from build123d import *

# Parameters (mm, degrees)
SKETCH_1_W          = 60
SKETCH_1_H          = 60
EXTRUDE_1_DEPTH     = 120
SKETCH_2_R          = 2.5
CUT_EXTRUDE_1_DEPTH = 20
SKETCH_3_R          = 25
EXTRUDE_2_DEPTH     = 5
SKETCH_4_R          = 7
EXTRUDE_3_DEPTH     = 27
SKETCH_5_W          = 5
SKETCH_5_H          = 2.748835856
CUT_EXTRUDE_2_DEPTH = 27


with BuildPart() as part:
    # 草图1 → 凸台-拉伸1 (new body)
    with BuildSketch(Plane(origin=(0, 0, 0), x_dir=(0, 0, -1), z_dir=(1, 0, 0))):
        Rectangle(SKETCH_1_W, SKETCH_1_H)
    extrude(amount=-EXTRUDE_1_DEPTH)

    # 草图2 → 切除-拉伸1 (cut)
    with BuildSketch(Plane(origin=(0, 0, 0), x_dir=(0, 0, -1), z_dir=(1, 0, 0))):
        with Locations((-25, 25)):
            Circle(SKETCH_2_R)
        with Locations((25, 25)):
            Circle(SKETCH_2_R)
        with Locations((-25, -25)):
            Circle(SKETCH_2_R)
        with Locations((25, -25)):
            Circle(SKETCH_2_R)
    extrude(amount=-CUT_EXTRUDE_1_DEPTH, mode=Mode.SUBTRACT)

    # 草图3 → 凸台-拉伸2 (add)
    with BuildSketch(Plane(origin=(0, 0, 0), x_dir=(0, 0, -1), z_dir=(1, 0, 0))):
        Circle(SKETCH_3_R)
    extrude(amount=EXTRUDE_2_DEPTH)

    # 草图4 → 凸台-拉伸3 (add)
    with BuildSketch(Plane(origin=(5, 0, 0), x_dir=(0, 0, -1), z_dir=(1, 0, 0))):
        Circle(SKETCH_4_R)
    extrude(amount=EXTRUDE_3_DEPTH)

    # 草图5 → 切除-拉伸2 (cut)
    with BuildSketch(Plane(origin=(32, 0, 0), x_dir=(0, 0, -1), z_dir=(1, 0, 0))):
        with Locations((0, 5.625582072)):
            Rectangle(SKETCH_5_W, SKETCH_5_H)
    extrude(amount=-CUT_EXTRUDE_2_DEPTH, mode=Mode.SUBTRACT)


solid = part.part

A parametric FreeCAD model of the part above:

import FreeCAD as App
import Part
import Sketcher
from FreeCAD import Vector


def add_polygon(sketch, points):
    """Adds a closed chain of lines whose ends are joined by coincident constraints."""
    first, n = sketch.GeometryCount, len(points)
    for a, b in zip(points, points[1:] + points[:1]):
        sketch.addGeometry(Part.LineSegment(App.Vector(*a, 0), App.Vector(*b, 0)), False)
    for i in range(n):
        sketch.addConstraint(Sketcher.Constraint("Coincident", first + i, 2, first + (i + 1) % n, 1))

doc = App.newDocument("Part")
body = doc.addObject("PartDesign::Body", "Body")

sketch1 = body.newObject("Sketcher::SketchObject", "Sketch")
sketch1.AttachmentSupport = (doc.getObject("YZ_Plane"), [""])
sketch1.MapMode = "FlatFace"
add_polygon(sketch1, [(30, 30), (-30, 30), (-30, -30), (30, -30)])
sketch1.addConstraint([
    Sketcher.Constraint("Horizontal", 0),
    Sketcher.Constraint("Vertical", 1),
    Sketcher.Constraint("Horizontal", 2),
    Sketcher.Constraint("Vertical", 3),
    Sketcher.Constraint("Symmetric", 0, 2, 2, 2, -1, 1),
    Sketcher.Constraint("Equal", 2, 1),
    Sketcher.Constraint("DistanceX", 0, 2, 0, 1, 60.0),
])
pad1 = body.newObject("PartDesign::Pad", "Pad")
pad1.Profile = sketch1
pad1.Length = 120
pad1.Reversed = True

sketch2 = body.newObject("Sketcher::SketchObject", "Sketch001")
sketch2.AttachmentSupport = (doc.getObject("YZ_Plane"), [""])
sketch2.MapMode = "FlatFace"
sketch2.addGeometry([
    Part.Circle(Vector(25, 25, 0), Vector(0, 0, 1), 2.5),
    Part.Circle(Vector(25, -25, 0), Vector(0, 0, 1), 2.5),
    Part.Circle(Vector(-25, 25, 0), Vector(0, 0, 1), 2.5),
    Part.Circle(Vector(-25, -25, 0), Vector(0, 0, 1), 2.5),
], False)
sketch2.addConstraint([
    Sketcher.Constraint("Equal", 0, 1),
    Sketcher.Constraint("Equal", 1, 2),
    Sketcher.Constraint("Equal", 2, 3),
    Sketcher.Constraint("Symmetric", 1, 3, 2, 3, -1, 1),
    Sketcher.Constraint("Symmetric", 0, 3, 3, 3, -1, 1),
    Sketcher.Constraint("Symmetric", 0, 3, 2, 3, -2),
    Sketcher.Constraint("Diameter", 0, 5.0),
    Sketcher.Constraint("DistanceX", -1, 1, 0, 3, 25.0),
    Sketcher.Constraint("DistanceY", -1, 1, 0, 3, 25.0),
])
pocket1 = body.newObject("PartDesign::Pocket", "Pocket")
pocket1.Profile = sketch2
pocket1.Length = 20

sketch3 = body.newObject("Sketcher::SketchObject", "Sketch002")
sketch3.AttachmentSupport = (doc.getObject("YZ_Plane"), [""])
sketch3.MapMode = "FlatFace"
sketch3.addGeometry(Part.Circle(Vector(0, 0, 0), Vector(0, 0, 1), 25), False)
sketch3.addConstraint([
    Sketcher.Constraint("Coincident", 0, 3, -1, 1),
    Sketcher.Constraint("Diameter", 0, 50.0),
])
pad2 = body.newObject("PartDesign::Pad", "Pad001")
pad2.Profile = sketch3
pad2.Length = 5

sketch4 = body.newObject("Sketcher::SketchObject", "Sketch003")
sketch4.AttachmentSupport = (doc.getObject("YZ_Plane"), [""])
sketch4.MapMode = "FlatFace"
sketch4.AttachmentOffset = App.Placement(Vector(0, 0, 5), App.Rotation())
sketch4.addGeometry(Part.Circle(Vector(0, 0, 0), Vector(0, 0, 1), 7), False)
sketch4.addConstraint([
    Sketcher.Constraint("Coincident", 0, 3, -1, 1),
    Sketcher.Constraint("Diameter", 0, 14.0),
])
pad3 = body.newObject("PartDesign::Pad", "Pad002")
pad3.Profile = sketch4
pad3.Length = 27

sketch5 = body.newObject("Sketcher::SketchObject", "Sketch004")
sketch5.AttachmentSupport = (doc.getObject("YZ_Plane"), [""])
sketch5.MapMode = "FlatFace"
sketch5.AttachmentOffset = App.Placement(Vector(0, 0, 32), App.Rotation())
add_polygon(sketch5, [(7, 2.5), (4.3, 2.5), (4.3, -2.5), (7, -2.5)])
sketch5.addConstraint([
    Sketcher.Constraint("Horizontal", 0),
    Sketcher.Constraint("Vertical", 1),
    Sketcher.Constraint("Horizontal", 2),
    Sketcher.Constraint("Vertical", 3),
    Sketcher.Constraint("DistanceY", 1, 2, 1, 1, 5.0),
    Sketcher.Constraint("DistanceX", -1, 1, 2, 2, 7.0),
    Sketcher.Constraint("DistanceY", -1, 1, 0, 2, 2.5),
    Sketcher.Constraint("DistanceX", 0, 2, 0, 1, 2.748836),
])
pocket2 = body.newObject("PartDesign::Pocket", "Pocket001")
pocket2.Profile = sketch5
pocket2.Length = 27

doc.recompute()
